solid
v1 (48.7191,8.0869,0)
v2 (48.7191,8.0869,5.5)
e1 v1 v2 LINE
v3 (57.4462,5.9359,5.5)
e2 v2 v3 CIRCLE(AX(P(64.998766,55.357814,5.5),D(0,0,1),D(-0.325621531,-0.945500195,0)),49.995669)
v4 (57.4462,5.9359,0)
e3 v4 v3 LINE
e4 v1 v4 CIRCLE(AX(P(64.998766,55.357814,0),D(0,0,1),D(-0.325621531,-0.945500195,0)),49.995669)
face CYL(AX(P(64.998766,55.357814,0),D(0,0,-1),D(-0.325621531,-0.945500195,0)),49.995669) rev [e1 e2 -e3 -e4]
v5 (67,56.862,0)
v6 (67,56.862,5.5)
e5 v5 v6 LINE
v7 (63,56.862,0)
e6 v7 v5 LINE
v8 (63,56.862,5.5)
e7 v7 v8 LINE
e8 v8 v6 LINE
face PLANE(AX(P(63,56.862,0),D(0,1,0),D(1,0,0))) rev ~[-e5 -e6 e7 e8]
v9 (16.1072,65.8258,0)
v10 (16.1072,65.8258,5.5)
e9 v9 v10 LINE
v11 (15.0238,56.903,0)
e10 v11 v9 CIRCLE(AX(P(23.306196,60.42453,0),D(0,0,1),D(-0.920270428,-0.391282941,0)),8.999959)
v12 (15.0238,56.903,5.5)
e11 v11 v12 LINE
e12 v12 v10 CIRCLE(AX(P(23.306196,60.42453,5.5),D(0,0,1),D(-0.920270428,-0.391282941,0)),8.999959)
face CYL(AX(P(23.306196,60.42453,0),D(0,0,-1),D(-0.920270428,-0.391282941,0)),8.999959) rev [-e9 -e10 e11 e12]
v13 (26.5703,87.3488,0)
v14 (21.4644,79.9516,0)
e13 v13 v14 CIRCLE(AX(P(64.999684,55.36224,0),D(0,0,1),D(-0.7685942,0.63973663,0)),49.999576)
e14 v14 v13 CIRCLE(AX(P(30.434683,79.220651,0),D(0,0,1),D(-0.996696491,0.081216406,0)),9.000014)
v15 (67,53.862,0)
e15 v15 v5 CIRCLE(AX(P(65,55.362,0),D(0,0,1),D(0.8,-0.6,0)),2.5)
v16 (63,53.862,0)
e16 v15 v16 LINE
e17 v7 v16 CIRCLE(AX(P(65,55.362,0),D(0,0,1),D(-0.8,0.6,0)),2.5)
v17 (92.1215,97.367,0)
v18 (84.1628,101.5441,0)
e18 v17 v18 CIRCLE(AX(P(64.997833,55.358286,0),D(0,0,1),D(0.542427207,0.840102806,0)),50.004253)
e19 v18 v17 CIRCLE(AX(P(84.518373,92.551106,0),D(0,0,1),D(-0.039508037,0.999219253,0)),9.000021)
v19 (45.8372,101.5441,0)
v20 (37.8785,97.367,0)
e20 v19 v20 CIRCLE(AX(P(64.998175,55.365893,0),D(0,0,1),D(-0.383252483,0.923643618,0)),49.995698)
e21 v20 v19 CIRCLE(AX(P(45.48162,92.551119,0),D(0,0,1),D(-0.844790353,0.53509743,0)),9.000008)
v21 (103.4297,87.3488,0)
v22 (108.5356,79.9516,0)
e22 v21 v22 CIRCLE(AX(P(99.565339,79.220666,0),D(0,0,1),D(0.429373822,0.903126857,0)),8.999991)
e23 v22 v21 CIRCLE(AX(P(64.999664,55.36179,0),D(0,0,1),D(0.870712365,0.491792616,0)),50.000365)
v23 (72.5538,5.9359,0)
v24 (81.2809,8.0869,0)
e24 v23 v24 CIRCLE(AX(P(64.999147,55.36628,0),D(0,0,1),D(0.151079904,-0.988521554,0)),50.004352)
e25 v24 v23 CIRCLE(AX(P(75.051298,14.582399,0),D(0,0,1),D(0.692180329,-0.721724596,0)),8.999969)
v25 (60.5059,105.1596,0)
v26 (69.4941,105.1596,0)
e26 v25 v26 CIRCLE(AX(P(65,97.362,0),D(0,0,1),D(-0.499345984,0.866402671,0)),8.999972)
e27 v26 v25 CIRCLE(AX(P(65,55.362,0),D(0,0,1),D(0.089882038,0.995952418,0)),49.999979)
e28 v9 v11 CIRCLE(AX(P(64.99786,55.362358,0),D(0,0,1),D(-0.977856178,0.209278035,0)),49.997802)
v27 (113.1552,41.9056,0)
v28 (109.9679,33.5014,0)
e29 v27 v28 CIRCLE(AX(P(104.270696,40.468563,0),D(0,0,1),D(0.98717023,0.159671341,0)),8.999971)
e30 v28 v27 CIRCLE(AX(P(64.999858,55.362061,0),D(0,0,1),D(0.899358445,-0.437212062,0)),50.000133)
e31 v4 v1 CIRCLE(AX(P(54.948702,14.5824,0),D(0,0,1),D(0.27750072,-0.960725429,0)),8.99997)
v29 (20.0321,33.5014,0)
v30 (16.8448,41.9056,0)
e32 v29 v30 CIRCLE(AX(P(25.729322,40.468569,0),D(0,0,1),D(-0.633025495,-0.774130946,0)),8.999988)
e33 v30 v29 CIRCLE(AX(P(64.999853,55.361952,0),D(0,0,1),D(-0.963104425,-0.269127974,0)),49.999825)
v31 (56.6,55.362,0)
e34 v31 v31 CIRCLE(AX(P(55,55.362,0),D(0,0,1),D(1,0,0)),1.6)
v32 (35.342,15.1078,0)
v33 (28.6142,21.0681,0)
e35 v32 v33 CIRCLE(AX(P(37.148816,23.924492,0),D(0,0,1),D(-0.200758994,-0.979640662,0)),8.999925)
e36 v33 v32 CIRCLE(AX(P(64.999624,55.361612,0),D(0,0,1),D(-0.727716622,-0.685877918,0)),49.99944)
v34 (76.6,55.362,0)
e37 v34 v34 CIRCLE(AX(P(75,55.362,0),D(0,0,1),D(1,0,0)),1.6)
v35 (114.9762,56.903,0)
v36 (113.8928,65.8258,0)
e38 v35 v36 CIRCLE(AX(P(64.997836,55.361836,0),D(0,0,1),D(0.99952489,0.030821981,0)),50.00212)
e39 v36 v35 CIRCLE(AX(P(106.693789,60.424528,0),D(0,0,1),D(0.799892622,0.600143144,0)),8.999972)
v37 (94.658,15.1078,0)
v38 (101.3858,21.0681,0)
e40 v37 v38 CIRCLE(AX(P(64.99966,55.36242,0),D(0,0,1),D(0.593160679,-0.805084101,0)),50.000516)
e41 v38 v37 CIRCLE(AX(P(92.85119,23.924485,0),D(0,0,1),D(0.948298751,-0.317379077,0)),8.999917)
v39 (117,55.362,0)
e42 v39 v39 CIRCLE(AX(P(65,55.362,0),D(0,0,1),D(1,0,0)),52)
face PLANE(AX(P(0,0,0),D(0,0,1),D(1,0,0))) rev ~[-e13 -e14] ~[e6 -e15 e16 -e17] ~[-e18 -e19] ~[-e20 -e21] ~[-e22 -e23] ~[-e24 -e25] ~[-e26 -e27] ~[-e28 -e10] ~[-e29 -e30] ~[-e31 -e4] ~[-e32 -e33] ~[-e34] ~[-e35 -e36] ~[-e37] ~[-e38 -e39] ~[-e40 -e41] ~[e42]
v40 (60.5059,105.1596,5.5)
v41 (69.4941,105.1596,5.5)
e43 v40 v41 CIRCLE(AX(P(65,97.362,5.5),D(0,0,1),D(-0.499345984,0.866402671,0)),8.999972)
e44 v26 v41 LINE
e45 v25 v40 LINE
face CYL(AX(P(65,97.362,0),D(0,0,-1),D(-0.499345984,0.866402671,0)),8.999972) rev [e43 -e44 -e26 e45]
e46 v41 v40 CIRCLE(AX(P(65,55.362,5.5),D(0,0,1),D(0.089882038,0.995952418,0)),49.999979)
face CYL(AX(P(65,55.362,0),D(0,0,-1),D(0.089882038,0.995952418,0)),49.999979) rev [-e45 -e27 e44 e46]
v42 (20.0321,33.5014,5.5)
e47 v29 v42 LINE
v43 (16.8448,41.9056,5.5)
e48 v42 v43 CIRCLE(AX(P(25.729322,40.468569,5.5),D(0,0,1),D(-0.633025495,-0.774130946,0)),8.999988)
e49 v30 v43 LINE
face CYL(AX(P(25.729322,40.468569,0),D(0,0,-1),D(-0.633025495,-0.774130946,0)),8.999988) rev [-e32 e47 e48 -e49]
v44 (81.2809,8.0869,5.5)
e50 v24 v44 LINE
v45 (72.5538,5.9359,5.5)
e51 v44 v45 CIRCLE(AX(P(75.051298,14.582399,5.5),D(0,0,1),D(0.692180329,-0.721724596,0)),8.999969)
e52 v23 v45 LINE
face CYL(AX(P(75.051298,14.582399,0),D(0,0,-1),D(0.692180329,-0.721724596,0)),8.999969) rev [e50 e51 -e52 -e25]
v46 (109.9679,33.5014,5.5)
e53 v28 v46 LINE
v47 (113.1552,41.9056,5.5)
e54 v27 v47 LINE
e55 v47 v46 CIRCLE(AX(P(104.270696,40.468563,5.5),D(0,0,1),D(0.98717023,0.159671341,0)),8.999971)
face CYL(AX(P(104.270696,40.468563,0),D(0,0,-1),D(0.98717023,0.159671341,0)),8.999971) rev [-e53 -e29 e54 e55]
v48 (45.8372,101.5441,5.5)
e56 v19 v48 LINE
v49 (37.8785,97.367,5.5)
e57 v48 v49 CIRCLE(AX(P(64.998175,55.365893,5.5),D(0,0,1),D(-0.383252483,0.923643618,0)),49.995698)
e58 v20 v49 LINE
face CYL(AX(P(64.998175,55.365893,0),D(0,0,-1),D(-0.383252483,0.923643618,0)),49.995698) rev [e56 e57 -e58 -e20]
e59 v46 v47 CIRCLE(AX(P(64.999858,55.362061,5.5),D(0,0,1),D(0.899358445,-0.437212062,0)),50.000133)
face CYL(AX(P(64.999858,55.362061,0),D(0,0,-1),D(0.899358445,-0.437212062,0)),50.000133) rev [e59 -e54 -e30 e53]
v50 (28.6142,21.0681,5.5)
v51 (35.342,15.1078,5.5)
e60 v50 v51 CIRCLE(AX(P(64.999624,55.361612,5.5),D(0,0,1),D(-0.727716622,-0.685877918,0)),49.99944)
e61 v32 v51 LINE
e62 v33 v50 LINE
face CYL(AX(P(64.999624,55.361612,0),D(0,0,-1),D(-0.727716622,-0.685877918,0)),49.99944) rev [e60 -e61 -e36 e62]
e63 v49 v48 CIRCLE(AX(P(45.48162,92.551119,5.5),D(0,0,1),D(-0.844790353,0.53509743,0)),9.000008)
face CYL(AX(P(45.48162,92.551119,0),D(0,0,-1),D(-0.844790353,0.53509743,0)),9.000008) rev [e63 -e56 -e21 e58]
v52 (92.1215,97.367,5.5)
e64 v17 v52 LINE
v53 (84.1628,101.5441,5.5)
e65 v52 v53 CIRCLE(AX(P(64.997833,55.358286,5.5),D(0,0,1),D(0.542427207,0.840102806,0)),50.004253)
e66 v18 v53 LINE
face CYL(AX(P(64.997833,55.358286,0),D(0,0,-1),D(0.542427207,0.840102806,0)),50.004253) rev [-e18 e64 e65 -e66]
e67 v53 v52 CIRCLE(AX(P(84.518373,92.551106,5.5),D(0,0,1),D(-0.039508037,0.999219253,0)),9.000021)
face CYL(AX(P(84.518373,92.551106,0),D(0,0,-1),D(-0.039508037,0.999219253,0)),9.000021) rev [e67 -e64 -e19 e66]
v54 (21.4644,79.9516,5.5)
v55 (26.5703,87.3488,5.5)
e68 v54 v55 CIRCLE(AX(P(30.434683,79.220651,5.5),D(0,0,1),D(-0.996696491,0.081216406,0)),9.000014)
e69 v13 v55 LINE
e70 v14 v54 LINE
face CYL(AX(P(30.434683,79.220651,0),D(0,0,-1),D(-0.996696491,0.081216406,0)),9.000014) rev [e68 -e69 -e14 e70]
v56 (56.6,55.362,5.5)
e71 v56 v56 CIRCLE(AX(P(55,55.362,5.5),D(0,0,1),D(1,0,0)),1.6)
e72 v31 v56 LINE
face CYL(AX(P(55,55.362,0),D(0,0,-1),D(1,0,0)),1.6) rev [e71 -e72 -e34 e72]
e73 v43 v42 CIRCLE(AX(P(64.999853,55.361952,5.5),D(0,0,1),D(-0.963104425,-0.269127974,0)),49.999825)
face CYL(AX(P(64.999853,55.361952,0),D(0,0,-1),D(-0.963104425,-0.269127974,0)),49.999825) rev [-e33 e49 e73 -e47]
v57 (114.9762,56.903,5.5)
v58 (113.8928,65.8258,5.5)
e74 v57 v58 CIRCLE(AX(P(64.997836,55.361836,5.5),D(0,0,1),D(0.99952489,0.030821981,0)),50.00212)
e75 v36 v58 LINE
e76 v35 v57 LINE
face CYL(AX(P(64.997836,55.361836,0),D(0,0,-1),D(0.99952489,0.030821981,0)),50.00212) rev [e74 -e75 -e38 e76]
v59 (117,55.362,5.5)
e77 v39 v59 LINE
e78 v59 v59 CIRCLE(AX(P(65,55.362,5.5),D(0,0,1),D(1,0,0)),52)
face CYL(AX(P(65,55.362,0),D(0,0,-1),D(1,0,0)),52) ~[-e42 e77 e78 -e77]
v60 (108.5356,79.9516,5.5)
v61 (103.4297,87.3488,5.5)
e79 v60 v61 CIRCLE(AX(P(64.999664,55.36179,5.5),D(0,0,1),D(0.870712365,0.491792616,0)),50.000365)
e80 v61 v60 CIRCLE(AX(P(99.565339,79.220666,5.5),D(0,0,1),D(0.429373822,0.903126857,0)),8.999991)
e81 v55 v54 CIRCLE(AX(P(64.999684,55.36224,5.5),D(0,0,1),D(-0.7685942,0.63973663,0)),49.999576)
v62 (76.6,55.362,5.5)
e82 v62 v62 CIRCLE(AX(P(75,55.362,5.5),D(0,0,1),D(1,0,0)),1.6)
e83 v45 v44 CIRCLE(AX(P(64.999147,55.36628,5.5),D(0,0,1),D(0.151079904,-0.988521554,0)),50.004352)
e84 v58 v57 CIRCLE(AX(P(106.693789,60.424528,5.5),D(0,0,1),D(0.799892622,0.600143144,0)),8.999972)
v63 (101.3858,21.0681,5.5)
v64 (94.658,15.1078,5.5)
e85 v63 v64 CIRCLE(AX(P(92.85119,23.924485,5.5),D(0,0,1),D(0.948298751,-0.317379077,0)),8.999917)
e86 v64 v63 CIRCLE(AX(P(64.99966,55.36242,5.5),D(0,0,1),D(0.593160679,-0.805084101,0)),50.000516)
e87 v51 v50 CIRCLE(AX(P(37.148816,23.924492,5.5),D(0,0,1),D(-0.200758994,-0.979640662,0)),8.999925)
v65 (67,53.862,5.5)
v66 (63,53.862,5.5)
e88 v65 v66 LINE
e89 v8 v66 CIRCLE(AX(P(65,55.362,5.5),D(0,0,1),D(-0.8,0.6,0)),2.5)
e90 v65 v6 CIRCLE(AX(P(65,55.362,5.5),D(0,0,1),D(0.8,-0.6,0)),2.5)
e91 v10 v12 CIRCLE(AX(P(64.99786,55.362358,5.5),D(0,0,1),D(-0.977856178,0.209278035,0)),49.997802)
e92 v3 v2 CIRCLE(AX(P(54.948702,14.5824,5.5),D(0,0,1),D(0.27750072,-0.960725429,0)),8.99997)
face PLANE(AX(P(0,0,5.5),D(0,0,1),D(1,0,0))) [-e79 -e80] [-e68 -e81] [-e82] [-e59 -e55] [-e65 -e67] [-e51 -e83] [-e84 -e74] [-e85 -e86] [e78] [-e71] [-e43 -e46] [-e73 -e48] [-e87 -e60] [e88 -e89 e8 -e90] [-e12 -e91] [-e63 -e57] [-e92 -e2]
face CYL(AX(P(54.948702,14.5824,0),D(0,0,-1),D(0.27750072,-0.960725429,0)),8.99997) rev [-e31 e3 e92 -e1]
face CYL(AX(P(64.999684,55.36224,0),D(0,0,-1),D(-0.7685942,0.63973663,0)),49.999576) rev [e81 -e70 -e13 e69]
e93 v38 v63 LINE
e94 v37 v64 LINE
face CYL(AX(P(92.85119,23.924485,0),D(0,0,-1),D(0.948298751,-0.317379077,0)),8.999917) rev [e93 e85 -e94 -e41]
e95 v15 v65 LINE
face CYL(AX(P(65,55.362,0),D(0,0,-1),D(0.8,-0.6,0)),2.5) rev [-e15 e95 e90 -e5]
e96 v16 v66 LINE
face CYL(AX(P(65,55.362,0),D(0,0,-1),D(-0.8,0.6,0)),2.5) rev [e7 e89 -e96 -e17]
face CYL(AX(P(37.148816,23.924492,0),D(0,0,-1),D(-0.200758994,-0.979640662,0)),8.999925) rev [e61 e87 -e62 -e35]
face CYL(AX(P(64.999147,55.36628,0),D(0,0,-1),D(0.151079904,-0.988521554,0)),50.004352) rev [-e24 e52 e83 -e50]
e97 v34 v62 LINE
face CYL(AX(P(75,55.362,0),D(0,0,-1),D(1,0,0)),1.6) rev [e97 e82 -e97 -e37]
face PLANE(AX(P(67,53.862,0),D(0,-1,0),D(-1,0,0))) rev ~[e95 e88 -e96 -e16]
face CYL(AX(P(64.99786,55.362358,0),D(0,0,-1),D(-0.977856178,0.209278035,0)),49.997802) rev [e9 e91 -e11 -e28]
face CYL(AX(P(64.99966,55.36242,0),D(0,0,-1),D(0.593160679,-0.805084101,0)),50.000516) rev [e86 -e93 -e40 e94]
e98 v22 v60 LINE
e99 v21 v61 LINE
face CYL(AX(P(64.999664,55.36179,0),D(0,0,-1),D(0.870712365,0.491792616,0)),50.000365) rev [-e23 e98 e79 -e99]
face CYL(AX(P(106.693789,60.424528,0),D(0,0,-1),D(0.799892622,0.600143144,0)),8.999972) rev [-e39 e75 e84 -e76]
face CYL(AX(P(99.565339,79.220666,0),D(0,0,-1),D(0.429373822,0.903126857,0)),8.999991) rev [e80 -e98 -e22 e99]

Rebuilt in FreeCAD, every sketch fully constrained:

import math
import FreeCAD as App
import Part
import Sketcher
from FreeCAD import Vector
Q = App.Units.Quantity

doc = App.newDocument("Part")
body = doc.addObject("PartDesign::Body", "Body")

# Sketch on XY plane
sketch1 = body.newObject("Sketcher::SketchObject", "Sketch")
sketch1.AttachmentSupport = (doc.getObject("XY_Plane"), [""])
sketch1.MapMode = "FlatFace"
sketch1.addGeometry([
    Part.Circle(Vector(65, 55.4, 0), Vector(0, 0, 1), 52),  # 0
    Part.ArcOfCircle(Part.Circle(Vector(37.1, 23.9, 0), Vector(0, 0, 1), 9), math.radians(-102), math.radians(199)),  # 1
    Part.ArcOfCircle(Part.Circle(Vector(65, 55.4, 0), Vector(0, 0, 1), 50), math.radians(-136.7), math.radians(-126.38)),  # 2
    Part.ArcOfCircle(Part.Circle(Vector(54.9, 14.6, 0), Vector(0, 0, 1), 9), math.radians(-74), math.radians(226)),  # 3
    Part.ArcOfCircle(Part.Circle(Vector(65, 55.4, 0), Vector(0, 0, 1), 50), math.radians(-109), math.radians(-98.69)),  # 4
    Part.ArcOfCircle(Part.Circle(Vector(25.7, 40.5, 0), Vector(0, 0, 1), 9), math.radians(-129), math.radians(171)),  # 5
    Part.ArcOfCircle(Part.Circle(Vector(65, 55.4, 0), Vector(0, 0, 1), 50), math.radians(-164.39), math.radians(-154.07)),  # 6
    Part.ArcOfCircle(Part.Circle(Vector(75.1, 14.6, 0), Vector(0, 0, 1), 9), math.radians(-46), math.radians(254)),  # 7
    Part.ArcOfCircle(Part.Circle(Vector(65, 55.4, 0), Vector(0, 0, 1), 50), math.radians(-81.31), math.radians(-71)),  # 8
    Part.ArcOfCircle(Part.Circle(Vector(92.9, 23.9, 0), Vector(0, 0, 1), 9), math.radians(-19), math.radians(282)),  # 9
    Part.ArcOfCircle(Part.Circle(Vector(65, 55.4, 0), Vector(0, 0, 1), 50), math.radians(-53.62), math.radians(-43.3)),  # 10
    Part.ArcOfCircle(Part.Circle(Vector(104.3, 40.5, 0), Vector(0, 0, 1), 9), math.radians(9), math.radians(309)),  # 11
    Part.ArcOfCircle(Part.Circle(Vector(65, 55.4, 0), Vector(0, 0, 1), 50), math.radians(-25.93), math.radians(-15.61)),  # 12
    Part.ArcOfCircle(Part.Circle(Vector(23.3, 60.4, 0), Vector(0, 0, 1), 9), math.radians(-157), math.radians(143)),  # 13
    Part.ArcOfCircle(Part.Circle(Vector(65, 55.4, 0), Vector(0, 0, 1), 50), math.radians(167.92), math.radians(178.23)),  # 14
    Part.ArcOfCircle(Part.Circle(Vector(30.4, 79.2, 0), Vector(0, 0, 1), 9), math.radians(175), math.radians(475)),  # 15
    Part.ArcOfCircle(Part.Circle(Vector(65, 55.4, 0), Vector(0, 0, 1), 50), math.radians(140.23), math.radians(150.54)),  # 16
    Part.Circle(Vector(55, 55.4, 0), Vector(0, 0, 1), 1.6),  # 17
    Part.ArcOfCircle(Part.Circle(Vector(45.5, 92.6, 0), Vector(0, 0, 1), 9), math.radians(148), math.radians(448)),  # 18
    Part.ArcOfCircle(Part.Circle(Vector(65, 55.4, 0), Vector(0, 0, 1), 50), math.radians(112.54), math.radians(122.85)),  # 19
    Part.ArcOfCircle(Part.Circle(Vector(65, 55.4, 0), Vector(0, 0, 1), 2.5), math.radians(143), math.radians(217)),  # 20
    Part.LineSegment(Vector(63, 56.9, 0), Vector(67, 56.9, 0)),  # 21
    Part.ArcOfCircle(Part.Circle(Vector(65, 55.4, 0), Vector(0, 0, 1), 2.5), math.radians(-37), math.radians(37)),  # 22
    Part.LineSegment(Vector(67, 53.9, 0), Vector(63, 53.9, 0)),  # 23
    Part.Circle(Vector(75, 55.4, 0), Vector(0, 0, 1), 1.6),  # 24
    Part.ArcOfCircle(Part.Circle(Vector(106.7, 60.4, 0), Vector(0, 0, 1), 9), math.radians(37), math.radians(337)),  # 25
    Part.ArcOfCircle(Part.Circle(Vector(65, 55.4, 0), Vector(0, 0, 1), 50), math.radians(1.77), math.radians(12.08)),  # 26
    Part.ArcOfCircle(Part.Circle(Vector(99.6, 79.2, 0), Vector(0, 0, 1), 9), math.radians(65), math.radians(365)),  # 27
    Part.ArcOfCircle(Part.Circle(Vector(65, 55.4, 0), Vector(0, 0, 1), 50), math.radians(29.46), math.radians(39.77)),  # 28
    Part.ArcOfCircle(Part.Circle(Vector(84.5, 92.6, 0), Vector(0, 0, 1), 9), math.radians(92), math.radians(392)),  # 29
    Part.ArcOfCircle(Part.Circle(Vector(65, 55.4, 0), Vector(0, 0, 1), 50), math.radians(57.15), math.radians(67.46)),  # 30
    Part.ArcOfCircle(Part.Circle(Vector(65, 97.4, 0), Vector(0, 0, 1), 9), math.radians(120), math.radians(420)),  # 31
    Part.ArcOfCircle(Part.Circle(Vector(65, 55.4, 0), Vector(0, 0, 1), 50), math.radians(84.84), math.radians(95.16)),  # 32
], False)
sketch1.addConstraint([
    Sketcher.Constraint("Coincident", 1, 1, 2, 2),
    Sketcher.Constraint("Coincident", 2, 1, 1, 2),
    Sketcher.Constraint("Coincident", 3, 1, 4, 2),
    Sketcher.Constraint("Coincident", 4, 1, 3, 2),
    Sketcher.Constraint("Coincident", 5, 1, 6, 2),
    Sketcher.Constraint("Coincident", 6, 1, 5, 2),
    Sketcher.Constraint("Coincident", 7, 1, 8, 2),
    Sketcher.Constraint("Coincident", 8, 1, 7, 2),
    Sketcher.Constraint("Coincident", 9, 1, 10, 2),
    Sketcher.Constraint("Coincident", 10, 1, 9, 2),
    Sketcher.Constraint("Coincident", 11, 1, 12, 2),
    Sketcher.Constraint("Coincident", 12, 1, 11, 2),
    Sketcher.Constraint("Coincident", 13, 1, 14, 2),
    Sketcher.Constraint("Coincident", 14, 1, 13, 2),
    Sketcher.Constraint("Coincident", 15, 1, 16, 2),
    Sketcher.Constraint("Coincident", 16, 1, 15, 2),
    Sketcher.Constraint("Coincident", 18, 1, 19, 2),
    Sketcher.Constraint("Coincident", 19, 1, 18, 2),
    Sketcher.Constraint("Coincident", 20, 1, 21, 1),
    Sketcher.Constraint("Coincident", 21, 2, 22, 2),
    Sketcher.Constraint("Coincident", 22, 1, 23, 1),
    Sketcher.Constraint("Coincident", 23, 2, 20, 2),
    Sketcher.Constraint("Coincident", 25, 1, 26, 2),
    Sketcher.Constraint("Coincident", 26, 1, 25, 2),
    Sketcher.Constraint("Coincident", 27, 1, 28, 2),
    Sketcher.Constraint("Coincident", 28, 1, 27, 2),
    Sketcher.Constraint("Coincident", 29, 1, 30, 2),
    Sketcher.Constraint("Coincident", 30, 1, 29, 2),
    Sketcher.Constraint("Coincident", 31, 1, 32, 2),
    Sketcher.Constraint("Coincident", 32, 1, 31, 2),
    Sketcher.Constraint("Horizontal", 21),
    Sketcher.Constraint("Horizontal", 23),
    Sketcher.Constraint("Coincident", 2, 3, 0, 3),
    Sketcher.Constraint("Coincident", 6, 3, 0, 3),
    Sketcher.Constraint("Coincident", 10, 3, 0, 3),
    Sketcher.Constraint("Coincident", 12, 3, 0, 3),
    Sketcher.Constraint("Coincident", 16, 3, 0, 3),
    Sketcher.Constraint("Coincident", 20, 3, 0, 3),
    Sketcher.Constraint("Coincident", 22, 3, 0, 3),
    Sketcher.Constraint("Coincident", 28, 3, 0, 3),
    Sketcher.Constraint("Coincident", 32, 3, 0, 3),
    Sketcher.Constraint("Equal", 1, 3),
    Sketcher.Constraint("Equal", 3, 5),
    Sketcher.Constraint("Equal", 2, 6),
    Sketcher.Constraint("Equal", 5, 7),
    Sketcher.Constraint("Equal", 7, 9),
    Sketcher.Constraint("Equal", 6, 10),
    Sketcher.Constraint("Equal", 9, 11),
    Sketcher.Constraint("Equal", 10, 12),
    Sketcher.Constraint("Equal", 11, 13),
    Sketcher.Constraint("Equal", 13, 15),
    Sketcher.Constraint("Equal", 12, 16),
    Sketcher.Constraint("Equal", 15, 18),
    Sketcher.Constraint("Equal", 4, 19),
    Sketcher.Constraint("Equal", 20, 22),
    Sketcher.Constraint("Equal", 17, 24),
    Sketcher.Constraint("Equal", 18, 25),
    Sketcher.Constraint("Equal", 25, 27),
    Sketcher.Constraint("Equal", 16, 28),
    Sketcher.Constraint("Equal", 27, 29),
    Sketcher.Constraint("Equal", 8, 30),
    Sketcher.Constraint("Equal", 29, 31),
    Sketcher.Constraint("Equal", 28, 32),
    Sketcher.Constraint("Horizontal", 3, 3, 7, 3),
    Sketcher.Constraint("Horizontal", 1, 3, 9, 3),
    Sketcher.Constraint("Horizontal", 5, 3, 11, 3),
    Sketcher.Constraint("Horizontal", 16, 3, 17, 3),
    Sketcher.Constraint("Horizontal", 22, 3, 24, 3),
    Sketcher.Constraint("Horizontal", 13, 3, 25, 3),
    Sketcher.Constraint("Horizontal", 24, 3, 26, 3),
    Sketcher.Constraint("Horizontal", 15, 3, 27, 3),
    Sketcher.Constraint("Horizontal", 18, 3, 29, 3),
    Sketcher.Constraint("Horizontal", 4, 1, 7, 1),
    Sketcher.Constraint("Horizontal", 3, 1, 8, 1),
    Sketcher.Constraint("Horizontal", 2, 1, 9, 1),
    Sketcher.Constraint("Horizontal", 6, 1, 11, 1),
    Sketcher.Constraint("Horizontal", 14, 1, 25, 1),
    Sketcher.Constraint("Horizontal", 13, 1, 26, 1),
    Sketcher.Constraint("Horizontal", 16, 1, 27, 1),
    Sketcher.Constraint("Horizontal", 19, 1, 29, 1),
    Sketcher.Constraint("Horizontal", 18, 1, 30, 1),
    Sketcher.Constraint("Horizontal", 31, 1, 32, 1),
    Sketcher.Constraint("Vertical", 14, 3, 26, 3),
    Sketcher.Constraint("Vertical", 26, 3, 30, 3),
    Sketcher.Constraint("Vertical", 21, 2, 22, 1),
    Sketcher.Constraint("Diameter", 17, Q("3.2 mm")),
    Sketcher.Constraint("Diameter", 0, Q("104 mm")),
    Sketcher.Constraint("Radius", 1, Q("9 mm")),
    Sketcher.Constraint("Radius", 2, Q("50 mm")),
    Sketcher.Constraint("Radius", 20, Q("2.5 mm")),
    Sketcher.Constraint("DistanceX", 21, 1, 21, 2, Q("4 mm")),
    Sketcher.Constraint("DistanceX", -1, 1, 0, 3, Q("65 mm")),
    Sketcher.Constraint("DistanceX", -1, 1, 17, 3, Q("55 mm")),
    Sketcher.Constraint("DistanceX", -1, 1, 24, 3, Q("75 mm")),
    Sketcher.Constraint("Radius", 4, Q("49.9957 mm")),
    Sketcher.Constraint("Radius", 8, Q("50.0044 mm")),
    Sketcher.Constraint("Radius", 14, Q("49.9978 mm")),
    Sketcher.Constraint("Radius", 26, Q("50.0021 mm")),
    Sketcher.Constraint("DistanceY", -1, 1, 0, 3, Q("55.362 mm")),
    Sketcher.Constraint("DistanceY", -1, 1, 18, 3, Q("92.551 mm")),
    Sketcher.Constraint("DistanceY", -1, 1, 19, 3, Q("55.366 mm")),
    Sketcher.Constraint("DistanceY", -1, 1, 31, 3, Q("97.362 mm")),
    Sketcher.Constraint("DistanceX", -1, 1, 1, 1, Q("35.342 mm")),
    Sketcher.Constraint("DistanceY", -1, 1, 2, 1, Q("21.068 mm")),
    Sketcher.Constraint("DistanceY", -1, 1, 3, 1, Q("5.936 mm")),
    Sketcher.Constraint("DistanceX", -1, 1, 4, 1, Q("48.719 mm")),
    Sketcher.Constraint("DistanceY", -1, 1, 4, 1, Q("8.087 mm")),
    Sketcher.Constraint("DistanceX", -1, 1, 5, 1, Q("20.032 mm")),
    Sketcher.Constraint("DistanceX", -1, 1, 7, 1, Q("81.281 mm")),
    Sketcher.Constraint("DistanceY", -1, 1, 13, 1, Q("56.903 mm")),
    Sketcher.Constraint("DistanceY", -1, 1, 18, 1, Q("97.367 mm")),
    Sketcher.Constraint("DistanceX", -1, 1, 3, 3, Q("54.9487 mm")),
    Sketcher.Constraint("DistanceX", -1, 1, 5, 3, Q("25.7293 mm")),
    Sketcher.Constraint("DistanceX", -1, 1, 13, 3, Q("23.3062 mm")),
    Sketcher.Constraint("DistanceY", -1, 1, 13, 3, Q("60.4245 mm")),
    Sketcher.Constraint("DistanceX", -1, 1, 15, 3, Q("30.4347 mm")),
    Sketcher.Constraint("DistanceY", -1, 1, 15, 3, Q("79.2207 mm")),
    Sketcher.Constraint("DistanceX", -1, 1, 18, 3, Q("45.4816 mm")),
])
pad1 = body.newObject("PartDesign::Pad", "Pad")
pad1.Profile = sketch1
pad1.Length = 5.5

doc.recompute()
